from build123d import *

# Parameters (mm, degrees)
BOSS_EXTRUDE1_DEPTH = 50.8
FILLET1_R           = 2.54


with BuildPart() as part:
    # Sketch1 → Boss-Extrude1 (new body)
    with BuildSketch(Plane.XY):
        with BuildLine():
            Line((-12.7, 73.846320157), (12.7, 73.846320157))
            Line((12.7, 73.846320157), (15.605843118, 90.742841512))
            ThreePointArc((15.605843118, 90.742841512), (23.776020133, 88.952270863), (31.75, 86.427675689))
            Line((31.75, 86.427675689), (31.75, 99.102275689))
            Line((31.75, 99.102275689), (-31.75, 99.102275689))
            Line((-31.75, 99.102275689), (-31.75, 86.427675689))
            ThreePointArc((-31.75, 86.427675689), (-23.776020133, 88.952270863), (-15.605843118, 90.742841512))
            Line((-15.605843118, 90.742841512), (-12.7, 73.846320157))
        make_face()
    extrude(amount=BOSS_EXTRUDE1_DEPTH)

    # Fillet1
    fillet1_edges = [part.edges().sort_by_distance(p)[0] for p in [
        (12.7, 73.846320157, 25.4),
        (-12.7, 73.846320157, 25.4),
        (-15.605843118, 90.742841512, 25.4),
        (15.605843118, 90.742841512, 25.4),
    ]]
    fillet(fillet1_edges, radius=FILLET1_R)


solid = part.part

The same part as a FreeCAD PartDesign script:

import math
import FreeCAD as App
import Part
import Sketcher

V = App.Vector
Q = App.Units.Quantity


def edges_at(feature, points):
    """Names of the edges that pass closest to the given points."""
    edges = feature.Shape.Edges
    near = lambda p: min(range(len(edges)), key=lambda i: edges[i].distToShape(Part.Vertex(*p))[0])
    return sorted({f"Edge{near(p) + 1}" for p in points})

doc = App.newDocument("Part")
body = doc.addObject("PartDesign::Body", "Body")

sketch1 = body.newObject("Sketcher::SketchObject", "Sketch")
sketch1.AttachmentSupport = (doc.getObject("XY_Plane"), [""])
sketch1.MapMode = "FlatFace"
sketch1.addGeometry(Part.LineSegment(V(-13, 74, 0), V(13, 74, 0)), False)
sketch1.addGeometry(Part.LineSegment(V(13, 74, 0), V(16, 91, 0)), False)
sketch1.addGeometry(Part.ArcOfCircle(Part.Circle(V(0, 0, 0), V(0, 0, 1), 92), math.radians(69.83), math.radians(80.24)), False)
sketch1.addGeometry(Part.LineSegment(V(32, 86, 0), V(32, 99, 0)), False)
sketch1.addGeometry(Part.LineSegment(V(32, 99, 0), V(-32, 99, 0)), False)
sketch1.addGeometry(Part.LineSegment(V(-32, 99, 0), V(-32, 86, 0)), False)
sketch1.addGeometry(Part.ArcOfCircle(Part.Circle(V(0, 0, 0), V(0, 0, 1), 92), math.radians(99.76), math.radians(110.17)), False)
sketch1.addGeometry(Part.LineSegment(V(-16, 91, 0), V(-13, 74, 0)), False)
sketch1.addConstraint(Sketcher.Constraint("Coincident", 0, 2, 1, 1))
sketch1.addConstraint(Sketcher.Constraint("Coincident", 1, 2, 2, 2))
sketch1.addConstraint(Sketcher.Constraint("Coincident", 2, 1, 3, 1))
sketch1.addConstraint(Sketcher.Constraint("Coincident", 3, 2, 4, 1))
sketch1.addConstraint(Sketcher.Constraint("Coincident", 4, 2, 5, 1))
sketch1.addConstraint(Sketcher.Constraint("Coincident", 5, 2, 6, 2))
sketch1.addConstraint(Sketcher.Constraint("Coincident", 6, 1, 7, 1))
sketch1.addConstraint(Sketcher.Constraint("Coincident", 7, 2, 0, 1))
sketch1.addConstraint(Sketcher.Constraint("Horizontal", 0))
sketch1.addConstraint(Sketcher.Constraint("Vertical", 3))
sketch1.addConstraint(Sketcher.Constraint("Horizontal", 4))
sketch1.addConstraint(Sketcher.Constraint("Vertical", 5))
sketch1.addConstraint(Sketcher.Constraint("Coincident", 2, 3, -1, 1))
sketch1.addConstraint(Sketcher.Constraint("Coincident", 6, 3, -1, 1))
sketch1.addConstraint(Sketcher.Constraint("Equal", 2, 6))
sketch1.addConstraint(Sketcher.Constraint("Horizontal", 2, 1, 5, 2))
sketch1.addConstraint(Sketcher.Constraint("Horizontal", 1, 2, 6, 1))
sketch1.addConstraint(Sketcher.Constraint("Equal", 1, 7))
sketch1.addConstraint(Sketcher.Constraint("DistanceX", 0, 1, 0, 2, Q("1 in")))
sketch1.addConstraint(Sketcher.Constraint("DistanceX", 4, 2, 4, 1, Q("2.5 in")))
sketch1.addConstraint(Sketcher.Constraint("Radius", 2, Q("3.625 in")))
sketch1.addConstraint(Sketcher.Constraint("DistanceY", 3, 1, 3, 2, Q("0.499 in")))
sketch1.addConstraint(Sketcher.Constraint("DistanceY", -1, 1, 0, 2, Q("73.84632 mm")))
sketch1.addConstraint(Sketcher.Constraint("DistanceY", -1, 1, 1, 2, Q("90.742842 mm")))
pad1 = body.newObject("PartDesign::Pad", "Pad")
pad1.Profile = sketch1
pad1.Length = Q("2 in")
doc.recompute()

fillet = body.newObject("PartDesign::Fillet", "Fillet")
fillet.Base = (pad1, edges_at(pad1, [
    (12.7, 73.846, 25.4),
    (-12.7, 73.846, 25.4),
    (-15.606, 90.743, 25.4),
    (15.606, 90.743, 25.4),
]))
fillet.Radius = Q("0.1 in")

doc.recompute()
